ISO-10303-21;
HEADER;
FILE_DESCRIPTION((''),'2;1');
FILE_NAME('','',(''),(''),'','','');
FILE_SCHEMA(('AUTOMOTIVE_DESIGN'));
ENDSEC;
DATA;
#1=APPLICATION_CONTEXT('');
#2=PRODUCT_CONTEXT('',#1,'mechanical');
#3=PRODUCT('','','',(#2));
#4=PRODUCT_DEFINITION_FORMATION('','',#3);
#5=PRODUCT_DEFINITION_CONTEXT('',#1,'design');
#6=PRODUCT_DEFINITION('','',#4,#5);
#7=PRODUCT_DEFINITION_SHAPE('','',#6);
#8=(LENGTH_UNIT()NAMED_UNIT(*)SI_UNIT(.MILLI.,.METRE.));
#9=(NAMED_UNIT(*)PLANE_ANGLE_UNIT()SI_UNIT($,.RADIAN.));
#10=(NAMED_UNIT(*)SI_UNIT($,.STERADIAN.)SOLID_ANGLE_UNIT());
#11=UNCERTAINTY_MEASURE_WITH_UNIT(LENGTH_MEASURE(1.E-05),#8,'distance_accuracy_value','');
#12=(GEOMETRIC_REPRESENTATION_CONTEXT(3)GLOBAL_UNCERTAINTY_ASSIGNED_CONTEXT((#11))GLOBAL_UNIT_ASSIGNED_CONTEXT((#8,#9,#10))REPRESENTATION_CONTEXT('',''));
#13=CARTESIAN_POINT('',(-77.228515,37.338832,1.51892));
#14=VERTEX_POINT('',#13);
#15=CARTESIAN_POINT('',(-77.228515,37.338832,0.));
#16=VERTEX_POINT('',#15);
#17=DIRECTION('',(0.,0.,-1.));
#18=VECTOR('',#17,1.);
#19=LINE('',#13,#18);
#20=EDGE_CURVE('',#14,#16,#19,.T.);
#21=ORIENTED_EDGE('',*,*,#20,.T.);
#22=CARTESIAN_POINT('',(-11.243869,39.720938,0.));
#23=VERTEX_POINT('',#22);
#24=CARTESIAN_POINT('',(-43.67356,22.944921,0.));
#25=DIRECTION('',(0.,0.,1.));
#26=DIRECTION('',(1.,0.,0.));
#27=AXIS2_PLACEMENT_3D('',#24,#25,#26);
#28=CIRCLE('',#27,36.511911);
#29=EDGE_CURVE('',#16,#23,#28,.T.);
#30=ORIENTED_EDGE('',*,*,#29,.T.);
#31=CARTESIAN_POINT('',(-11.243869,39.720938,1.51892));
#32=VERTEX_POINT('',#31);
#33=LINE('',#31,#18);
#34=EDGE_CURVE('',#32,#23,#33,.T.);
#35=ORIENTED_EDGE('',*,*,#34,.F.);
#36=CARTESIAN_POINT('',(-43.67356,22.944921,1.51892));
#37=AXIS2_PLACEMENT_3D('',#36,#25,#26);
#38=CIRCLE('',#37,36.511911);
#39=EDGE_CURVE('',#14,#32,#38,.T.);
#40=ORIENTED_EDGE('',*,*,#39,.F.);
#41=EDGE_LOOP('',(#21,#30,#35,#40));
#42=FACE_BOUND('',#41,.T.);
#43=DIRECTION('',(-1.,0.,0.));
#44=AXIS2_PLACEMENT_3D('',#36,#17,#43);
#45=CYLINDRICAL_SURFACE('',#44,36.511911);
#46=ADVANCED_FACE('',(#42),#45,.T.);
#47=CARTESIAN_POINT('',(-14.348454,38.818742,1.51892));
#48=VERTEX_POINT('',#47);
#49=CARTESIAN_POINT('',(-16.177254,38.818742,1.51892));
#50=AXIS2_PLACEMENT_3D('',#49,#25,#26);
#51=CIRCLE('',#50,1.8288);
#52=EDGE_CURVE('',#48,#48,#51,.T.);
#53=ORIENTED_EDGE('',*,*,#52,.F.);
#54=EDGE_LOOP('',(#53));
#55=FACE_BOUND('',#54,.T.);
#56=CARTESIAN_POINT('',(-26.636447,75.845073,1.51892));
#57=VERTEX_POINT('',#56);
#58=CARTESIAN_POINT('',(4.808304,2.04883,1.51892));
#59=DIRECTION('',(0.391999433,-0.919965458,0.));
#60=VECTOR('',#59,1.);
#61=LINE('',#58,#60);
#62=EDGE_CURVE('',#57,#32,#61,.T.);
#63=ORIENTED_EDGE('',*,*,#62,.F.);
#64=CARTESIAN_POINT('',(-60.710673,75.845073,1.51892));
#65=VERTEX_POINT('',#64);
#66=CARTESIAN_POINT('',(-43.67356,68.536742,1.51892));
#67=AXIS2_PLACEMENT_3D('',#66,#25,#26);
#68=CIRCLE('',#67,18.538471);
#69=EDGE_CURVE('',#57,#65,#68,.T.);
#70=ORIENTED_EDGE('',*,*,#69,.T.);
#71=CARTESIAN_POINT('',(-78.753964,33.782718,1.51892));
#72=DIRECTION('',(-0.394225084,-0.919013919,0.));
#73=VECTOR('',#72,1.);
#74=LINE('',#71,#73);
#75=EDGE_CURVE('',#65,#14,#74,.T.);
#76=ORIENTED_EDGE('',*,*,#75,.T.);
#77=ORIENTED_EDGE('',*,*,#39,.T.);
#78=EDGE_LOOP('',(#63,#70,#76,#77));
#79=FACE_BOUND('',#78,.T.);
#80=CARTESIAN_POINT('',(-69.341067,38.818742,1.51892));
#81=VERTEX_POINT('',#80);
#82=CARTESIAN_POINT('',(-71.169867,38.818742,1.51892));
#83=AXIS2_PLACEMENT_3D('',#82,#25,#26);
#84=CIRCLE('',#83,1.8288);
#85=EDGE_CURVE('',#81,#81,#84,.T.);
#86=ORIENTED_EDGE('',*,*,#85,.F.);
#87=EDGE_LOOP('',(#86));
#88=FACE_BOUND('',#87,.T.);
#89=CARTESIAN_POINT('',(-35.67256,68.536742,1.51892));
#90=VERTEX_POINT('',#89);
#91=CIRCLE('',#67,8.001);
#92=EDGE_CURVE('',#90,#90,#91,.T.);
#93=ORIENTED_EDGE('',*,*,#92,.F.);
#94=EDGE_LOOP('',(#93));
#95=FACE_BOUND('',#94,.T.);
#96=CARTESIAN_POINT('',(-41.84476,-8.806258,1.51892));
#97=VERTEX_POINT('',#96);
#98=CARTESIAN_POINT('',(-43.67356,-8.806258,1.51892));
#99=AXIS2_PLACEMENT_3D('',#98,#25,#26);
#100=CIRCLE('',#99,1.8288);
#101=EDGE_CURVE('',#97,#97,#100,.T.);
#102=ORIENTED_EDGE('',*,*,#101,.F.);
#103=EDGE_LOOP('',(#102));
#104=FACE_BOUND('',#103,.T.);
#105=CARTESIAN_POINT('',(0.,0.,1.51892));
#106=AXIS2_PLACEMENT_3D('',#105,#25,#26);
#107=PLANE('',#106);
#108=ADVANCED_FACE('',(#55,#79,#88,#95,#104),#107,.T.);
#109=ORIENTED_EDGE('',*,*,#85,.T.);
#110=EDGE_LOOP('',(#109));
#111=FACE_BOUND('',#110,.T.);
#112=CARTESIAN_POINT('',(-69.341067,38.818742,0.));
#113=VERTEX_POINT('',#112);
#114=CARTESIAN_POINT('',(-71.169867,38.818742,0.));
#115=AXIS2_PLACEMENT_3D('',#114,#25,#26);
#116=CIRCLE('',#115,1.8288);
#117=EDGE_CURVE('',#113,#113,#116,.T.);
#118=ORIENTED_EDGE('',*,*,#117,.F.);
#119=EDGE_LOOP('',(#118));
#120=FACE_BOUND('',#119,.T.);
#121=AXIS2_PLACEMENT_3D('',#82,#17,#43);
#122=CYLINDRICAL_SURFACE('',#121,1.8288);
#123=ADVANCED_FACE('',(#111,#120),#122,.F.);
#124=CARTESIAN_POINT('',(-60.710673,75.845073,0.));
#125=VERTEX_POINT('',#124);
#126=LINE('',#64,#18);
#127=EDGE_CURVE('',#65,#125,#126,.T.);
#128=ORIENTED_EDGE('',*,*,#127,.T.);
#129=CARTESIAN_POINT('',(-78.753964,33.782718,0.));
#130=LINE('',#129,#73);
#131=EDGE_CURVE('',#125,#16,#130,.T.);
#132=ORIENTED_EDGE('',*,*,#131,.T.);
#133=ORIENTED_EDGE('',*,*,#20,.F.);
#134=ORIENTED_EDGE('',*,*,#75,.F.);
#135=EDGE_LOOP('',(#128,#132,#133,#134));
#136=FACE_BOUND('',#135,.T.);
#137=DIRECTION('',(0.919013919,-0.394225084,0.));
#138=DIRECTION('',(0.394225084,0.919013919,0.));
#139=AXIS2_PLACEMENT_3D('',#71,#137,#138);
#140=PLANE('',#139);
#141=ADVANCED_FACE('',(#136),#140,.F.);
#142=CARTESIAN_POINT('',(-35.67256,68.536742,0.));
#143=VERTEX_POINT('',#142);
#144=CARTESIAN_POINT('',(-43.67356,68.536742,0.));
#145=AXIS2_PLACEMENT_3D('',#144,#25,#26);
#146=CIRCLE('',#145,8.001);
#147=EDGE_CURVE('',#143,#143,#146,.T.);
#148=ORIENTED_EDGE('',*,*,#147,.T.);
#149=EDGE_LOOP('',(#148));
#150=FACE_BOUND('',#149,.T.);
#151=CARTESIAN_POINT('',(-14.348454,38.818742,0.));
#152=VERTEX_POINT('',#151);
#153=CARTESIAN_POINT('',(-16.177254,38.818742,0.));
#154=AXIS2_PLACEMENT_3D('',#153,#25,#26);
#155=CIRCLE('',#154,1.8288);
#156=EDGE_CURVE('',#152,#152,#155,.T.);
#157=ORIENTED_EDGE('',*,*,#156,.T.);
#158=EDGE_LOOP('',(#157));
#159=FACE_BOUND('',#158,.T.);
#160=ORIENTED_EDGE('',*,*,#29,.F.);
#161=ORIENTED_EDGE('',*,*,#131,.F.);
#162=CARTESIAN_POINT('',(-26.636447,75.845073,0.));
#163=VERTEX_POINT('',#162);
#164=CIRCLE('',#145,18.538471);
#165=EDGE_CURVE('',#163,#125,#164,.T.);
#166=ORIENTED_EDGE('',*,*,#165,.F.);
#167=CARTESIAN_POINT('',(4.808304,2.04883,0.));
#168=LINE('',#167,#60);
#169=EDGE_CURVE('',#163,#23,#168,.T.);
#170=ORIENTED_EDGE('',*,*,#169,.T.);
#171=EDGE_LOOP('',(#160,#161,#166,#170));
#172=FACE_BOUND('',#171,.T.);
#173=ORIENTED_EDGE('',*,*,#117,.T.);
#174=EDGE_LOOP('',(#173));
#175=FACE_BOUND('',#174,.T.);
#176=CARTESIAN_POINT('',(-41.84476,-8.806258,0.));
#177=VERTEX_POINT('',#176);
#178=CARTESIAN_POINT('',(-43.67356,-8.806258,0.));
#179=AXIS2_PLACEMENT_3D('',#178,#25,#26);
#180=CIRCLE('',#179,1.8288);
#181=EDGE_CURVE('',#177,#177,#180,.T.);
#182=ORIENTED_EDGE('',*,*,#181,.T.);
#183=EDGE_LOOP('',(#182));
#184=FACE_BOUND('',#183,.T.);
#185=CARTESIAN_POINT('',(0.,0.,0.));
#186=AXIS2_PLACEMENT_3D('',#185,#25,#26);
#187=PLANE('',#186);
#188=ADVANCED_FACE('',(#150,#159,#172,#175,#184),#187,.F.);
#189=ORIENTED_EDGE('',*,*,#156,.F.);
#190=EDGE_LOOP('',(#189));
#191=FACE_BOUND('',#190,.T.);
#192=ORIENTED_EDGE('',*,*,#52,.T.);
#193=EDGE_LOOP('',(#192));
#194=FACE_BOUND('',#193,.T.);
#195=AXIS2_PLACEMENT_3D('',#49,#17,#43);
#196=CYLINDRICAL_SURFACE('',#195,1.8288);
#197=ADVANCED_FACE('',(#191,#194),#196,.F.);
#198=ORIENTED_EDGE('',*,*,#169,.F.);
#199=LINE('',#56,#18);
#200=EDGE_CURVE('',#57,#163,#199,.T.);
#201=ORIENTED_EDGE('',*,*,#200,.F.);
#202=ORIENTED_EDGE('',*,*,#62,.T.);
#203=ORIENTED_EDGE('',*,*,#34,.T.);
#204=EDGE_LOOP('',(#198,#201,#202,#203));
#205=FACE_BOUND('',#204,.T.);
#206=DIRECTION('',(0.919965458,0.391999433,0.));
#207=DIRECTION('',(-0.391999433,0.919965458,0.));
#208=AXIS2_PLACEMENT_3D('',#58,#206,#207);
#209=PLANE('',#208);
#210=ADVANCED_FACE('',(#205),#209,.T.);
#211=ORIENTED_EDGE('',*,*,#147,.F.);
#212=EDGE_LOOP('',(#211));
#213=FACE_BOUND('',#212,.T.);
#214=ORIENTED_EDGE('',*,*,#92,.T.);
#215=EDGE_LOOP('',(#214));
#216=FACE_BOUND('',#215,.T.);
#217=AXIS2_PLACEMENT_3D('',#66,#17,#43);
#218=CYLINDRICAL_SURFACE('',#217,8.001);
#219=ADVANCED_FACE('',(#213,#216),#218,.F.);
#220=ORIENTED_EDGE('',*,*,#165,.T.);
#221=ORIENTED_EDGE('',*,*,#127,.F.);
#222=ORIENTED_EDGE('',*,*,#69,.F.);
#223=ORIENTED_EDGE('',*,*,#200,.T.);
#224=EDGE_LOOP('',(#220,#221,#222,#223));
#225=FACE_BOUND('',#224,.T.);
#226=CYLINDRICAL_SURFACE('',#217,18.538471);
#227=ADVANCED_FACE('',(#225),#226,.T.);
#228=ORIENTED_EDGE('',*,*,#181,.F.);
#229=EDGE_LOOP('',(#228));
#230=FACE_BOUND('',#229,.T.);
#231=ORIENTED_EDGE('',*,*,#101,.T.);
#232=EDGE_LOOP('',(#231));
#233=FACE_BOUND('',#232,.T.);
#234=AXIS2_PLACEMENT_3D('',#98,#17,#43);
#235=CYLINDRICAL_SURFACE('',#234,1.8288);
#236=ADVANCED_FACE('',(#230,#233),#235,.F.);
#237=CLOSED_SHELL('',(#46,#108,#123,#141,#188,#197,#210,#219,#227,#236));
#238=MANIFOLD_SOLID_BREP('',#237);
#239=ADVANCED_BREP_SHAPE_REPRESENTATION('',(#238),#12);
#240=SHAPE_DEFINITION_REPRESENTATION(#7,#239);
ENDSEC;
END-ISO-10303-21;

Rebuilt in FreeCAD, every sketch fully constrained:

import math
import FreeCAD as App
import Part
import Sketcher
from FreeCAD import Vector
Q = App.Units.Quantity

doc = App.newDocument("Part")
body = doc.addObject("PartDesign::Body", "Body")

# Sketch on XY plane
sketch1 = body.newObject("Sketcher::SketchObject", "Sketch")
sketch1.AttachmentSupport = (doc.getObject("XY_Plane"), [""])
sketch1.MapMode = "FlatFace"
sketch1.addGeometry([
    Part.LineSegment(Vector(-11.243869, 39.720938, 0), Vector(-26.636447, 75.845073, 0)),  # 0
    Part.ArcOfCircle(Part.Circle(Vector(-43.67356, 68.536742, 0), Vector(0, 0, 1), 18.538471), math.radians(23.217653), math.radians(156.782347)),  # 1
    Part.LineSegment(Vector(-60.710673, 75.845073, 0), Vector(-77.228515, 37.338832, 0)),  # 2
    Part.ArcOfCircle(Part.Circle(Vector(-43.67356, 22.944921, 0), Vector(0, 0, 1), 36.511911), math.radians(156.782347), math.radians(387.352718)),  # 3
    Part.Circle(Vector(-43.67356, -8.806258, 0), Vector(0, 0, 1), 1.8288),  # 4
    Part.Circle(Vector(-71.169867, 38.818742, 0), Vector(0, 0, 1), 1.8288),  # 5
    Part.Circle(Vector(-43.67356, 68.536742, 0), Vector(0, 0, 1), 8.001),  # 6
    Part.Circle(Vector(-16.177254, 38.818742, 0), Vector(0, 0, 1), 1.8288),  # 7
], False)
sketch1.addConstraint([
    Sketcher.Constraint("Coincident", 0, 2, 1, 1),
    Sketcher.Constraint("Tangent", 1, 2, 2, 1),
    Sketcher.Constraint("Tangent", 2, 2, 3, 1),
    Sketcher.Constraint("Coincident", 3, 2, 0, 1),
    Sketcher.Constraint("Coincident", 6, 3, 1, 3),
    Sketcher.Constraint("Equal", 4, 5),
    Sketcher.Constraint("Equal", 5, 7),
    Sketcher.Constraint("Horizontal", 5, 3, 7, 3),
    Sketcher.Constraint("Horizontal", 0, 2, 1, 2),
    Sketcher.Constraint("Vertical", 1, 3, 3, 3),
    Sketcher.Constraint("Vertical", 3, 3, 4, 3),
    Sketcher.Constraint("Diameter", 6, Q("0.63 in")),
    Sketcher.Constraint("Diameter", 4, Q("0.144 in")),
    Sketcher.Constraint("DistanceY", 5, 3, 1, 3, Q("1.17 in")),
    Sketcher.Constraint("Radius", 1, Q("18.538471 mm")),
    Sketcher.Constraint("Radius", 3, Q("36.511911 mm")),
    Sketcher.Constraint("DistanceY", 4, 3, 1, 3, Q("3.045 in")),
    Sketcher.Constraint("Distance", 2, Q("41.899519 mm")),
    Sketcher.Constraint("DistanceX", 1, 3, -1, 1, Q("43.67356 mm")),
    Sketcher.Constraint("DistanceY", -1, 1, 3, 3, Q("22.944921 mm")),
    Sketcher.Constraint("DistanceX", 3, 2, -1, 1, Q("11.243869 mm")),
    Sketcher.Constraint("DistanceX", 5, 3, 0, 2, Q("44.53342 mm")),
    Sketcher.Constraint("DistanceX", 7, 3, -1, 1, Q("16.177254 mm")),
])
pad1 = body.newObject("PartDesign::Pad", "Pad")
pad1.Profile = sketch1
pad1.Length = Q("0.0598 in")

doc.recompute()
